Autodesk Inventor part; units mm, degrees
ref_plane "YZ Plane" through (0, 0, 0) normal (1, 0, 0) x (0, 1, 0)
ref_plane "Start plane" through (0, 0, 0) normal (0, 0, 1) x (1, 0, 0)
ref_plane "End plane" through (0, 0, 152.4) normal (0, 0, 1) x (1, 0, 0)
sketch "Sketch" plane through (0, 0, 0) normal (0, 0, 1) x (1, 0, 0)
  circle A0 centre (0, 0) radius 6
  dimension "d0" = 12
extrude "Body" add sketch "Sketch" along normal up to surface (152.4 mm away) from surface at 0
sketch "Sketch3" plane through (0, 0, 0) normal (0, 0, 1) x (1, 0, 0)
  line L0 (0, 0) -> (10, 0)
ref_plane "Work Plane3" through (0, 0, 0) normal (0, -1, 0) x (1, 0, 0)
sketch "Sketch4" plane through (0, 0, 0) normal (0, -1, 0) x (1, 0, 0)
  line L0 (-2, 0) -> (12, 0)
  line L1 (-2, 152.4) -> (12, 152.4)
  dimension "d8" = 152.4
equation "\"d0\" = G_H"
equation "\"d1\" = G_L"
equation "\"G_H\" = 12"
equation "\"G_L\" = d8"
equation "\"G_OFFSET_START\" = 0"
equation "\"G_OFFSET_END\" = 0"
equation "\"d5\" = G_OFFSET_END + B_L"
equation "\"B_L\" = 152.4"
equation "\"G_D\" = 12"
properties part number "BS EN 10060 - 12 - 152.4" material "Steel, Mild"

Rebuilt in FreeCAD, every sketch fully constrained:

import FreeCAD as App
import Part
import Sketcher

V = App.Vector
Q = App.Units.Quantity

doc = App.newDocument("Part")
params = doc.addObject("Spreadsheet::Sheet", "Params")
for row, (alias, value) in enumerate([
    ("sketch1_diameter", "12 mm"),
    ("pad1_length", "152.4 mm"),
], start=1):
    params.set(f"A{row}", alias)
    params.set(f"B{row}", "=" + value)
    params.setAlias(f"B{row}", alias)

body = doc.addObject("PartDesign::Body", "Body")

sketch1 = doc.addObject("Sketcher::SketchObject", "Sketch")
body.addObject(sketch1)
sketch1.AttachmentSupport = (doc.XY_Plane, [""])
sketch1.MapMode = "FlatFace"
sketch1.addGeometry(Part.Circle(V(0, 0, 0), V(0, 0, 1), 6), False)
sketch1.addConstraint([
    Sketcher.Constraint("Coincident", 0, 3, -1, 1),
    Sketcher.Constraint("Diameter", 0, Q("12 mm")),
])
sketch1.setExpression("Constraints[1]", "Params.sketch1_diameter")
pad1 = doc.addObject("PartDesign::Pad", "Pad")
body.addObject(pad1)
pad1.Profile = sketch1
pad1.setExpression("Length", "Params.pad1_length")

doc.recompute()
